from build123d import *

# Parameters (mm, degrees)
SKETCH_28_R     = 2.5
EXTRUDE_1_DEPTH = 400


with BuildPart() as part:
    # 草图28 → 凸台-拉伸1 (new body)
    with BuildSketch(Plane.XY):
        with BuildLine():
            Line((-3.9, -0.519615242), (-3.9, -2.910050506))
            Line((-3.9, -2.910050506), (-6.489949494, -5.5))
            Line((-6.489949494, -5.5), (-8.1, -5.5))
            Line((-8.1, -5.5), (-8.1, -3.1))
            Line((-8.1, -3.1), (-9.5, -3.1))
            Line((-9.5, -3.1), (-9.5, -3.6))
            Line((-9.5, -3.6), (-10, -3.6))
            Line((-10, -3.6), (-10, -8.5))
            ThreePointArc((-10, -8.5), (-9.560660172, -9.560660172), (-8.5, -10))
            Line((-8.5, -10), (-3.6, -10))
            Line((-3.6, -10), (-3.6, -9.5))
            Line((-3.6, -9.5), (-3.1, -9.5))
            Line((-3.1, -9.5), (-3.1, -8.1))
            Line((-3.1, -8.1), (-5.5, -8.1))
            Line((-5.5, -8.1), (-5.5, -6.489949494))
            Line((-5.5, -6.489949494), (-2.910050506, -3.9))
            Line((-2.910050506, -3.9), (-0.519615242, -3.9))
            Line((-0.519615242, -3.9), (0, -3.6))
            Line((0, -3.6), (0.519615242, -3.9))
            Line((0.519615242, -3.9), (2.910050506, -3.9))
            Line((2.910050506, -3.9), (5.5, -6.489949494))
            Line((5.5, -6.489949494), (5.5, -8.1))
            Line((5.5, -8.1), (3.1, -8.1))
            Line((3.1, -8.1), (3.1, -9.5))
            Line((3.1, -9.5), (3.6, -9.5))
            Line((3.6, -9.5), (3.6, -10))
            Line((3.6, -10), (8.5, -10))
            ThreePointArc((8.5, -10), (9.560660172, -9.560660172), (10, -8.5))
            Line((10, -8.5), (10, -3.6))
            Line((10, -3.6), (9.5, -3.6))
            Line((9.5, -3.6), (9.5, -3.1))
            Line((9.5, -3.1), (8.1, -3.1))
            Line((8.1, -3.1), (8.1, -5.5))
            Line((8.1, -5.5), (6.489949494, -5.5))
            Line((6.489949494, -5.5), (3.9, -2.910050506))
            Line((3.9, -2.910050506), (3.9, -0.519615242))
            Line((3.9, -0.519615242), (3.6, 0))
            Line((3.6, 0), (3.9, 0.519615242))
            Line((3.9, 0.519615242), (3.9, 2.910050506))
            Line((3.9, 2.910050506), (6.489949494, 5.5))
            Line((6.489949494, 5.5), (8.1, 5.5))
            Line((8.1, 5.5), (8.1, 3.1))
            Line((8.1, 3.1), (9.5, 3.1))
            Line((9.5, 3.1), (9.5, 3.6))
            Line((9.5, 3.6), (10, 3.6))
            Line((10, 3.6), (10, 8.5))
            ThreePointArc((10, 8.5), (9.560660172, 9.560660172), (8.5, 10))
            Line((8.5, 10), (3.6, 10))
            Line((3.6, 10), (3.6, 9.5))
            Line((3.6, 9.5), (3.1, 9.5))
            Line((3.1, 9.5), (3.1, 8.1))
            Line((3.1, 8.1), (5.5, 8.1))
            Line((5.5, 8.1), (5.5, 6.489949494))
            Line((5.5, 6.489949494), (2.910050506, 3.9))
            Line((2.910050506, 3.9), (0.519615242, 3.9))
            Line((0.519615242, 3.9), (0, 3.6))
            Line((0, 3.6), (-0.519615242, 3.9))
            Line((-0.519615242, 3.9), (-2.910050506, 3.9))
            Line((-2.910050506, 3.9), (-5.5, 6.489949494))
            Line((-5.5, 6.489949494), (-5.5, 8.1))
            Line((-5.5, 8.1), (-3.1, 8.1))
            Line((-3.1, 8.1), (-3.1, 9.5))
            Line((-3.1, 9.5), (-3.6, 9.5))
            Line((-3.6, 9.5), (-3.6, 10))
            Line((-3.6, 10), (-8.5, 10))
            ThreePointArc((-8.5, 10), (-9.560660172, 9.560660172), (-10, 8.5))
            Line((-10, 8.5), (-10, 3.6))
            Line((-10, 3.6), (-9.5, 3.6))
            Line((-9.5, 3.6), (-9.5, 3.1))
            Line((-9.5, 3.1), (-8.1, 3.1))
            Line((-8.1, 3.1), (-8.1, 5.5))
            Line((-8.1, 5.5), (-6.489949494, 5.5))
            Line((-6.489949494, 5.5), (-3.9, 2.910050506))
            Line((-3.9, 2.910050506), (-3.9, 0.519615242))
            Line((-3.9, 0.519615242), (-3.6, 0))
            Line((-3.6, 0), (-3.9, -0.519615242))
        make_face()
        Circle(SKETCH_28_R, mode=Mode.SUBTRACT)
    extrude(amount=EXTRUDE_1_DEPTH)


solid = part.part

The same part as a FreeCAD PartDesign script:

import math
import FreeCAD as App
import Part
import Sketcher

V = App.Vector
Q = App.Units.Quantity

doc = App.newDocument("Part")
body = doc.addObject("PartDesign::Body", "Body")

# Sketch on XY plane
sketch1 = body.newObject("Sketcher::SketchObject", "Sketch")
sketch1.AttachmentSupport = (doc.getObject("XY_Plane"), [""])
sketch1.MapMode = "FlatFace"
sketch1.addGeometry(Part.LineSegment(V(-3.9, -0.5, 0), V(-3.9, -2.9, 0)), False)
sketch1.addGeometry(Part.LineSegment(V(-3.9, -2.9, 0), V(-6.5, -5.5, 0)), False)
sketch1.addGeometry(Part.LineSegment(V(-6.5, -5.5, 0), V(-8.1, -5.5, 0)), False)
sketch1.addGeometry(Part.LineSegment(V(-8.1, -5.5, 0), V(-8.1, -3.1, 0)), False)
sketch1.addGeometry(Part.LineSegment(V(-8.1, -3.1, 0), V(-9.5, -3.1, 0)), False)
sketch1.addGeometry(Part.LineSegment(V(-9.5, -3.1, 0), V(-9.5, -3.6, 0)), False)
sketch1.addGeometry(Part.LineSegment(V(-9.5, -3.6, 0), V(-10, -3.6, 0)), False)
sketch1.addGeometry(Part.LineSegment(V(-10, -3.6, 0), V(-10, -8.5, 0)), False)
sketch1.addGeometry(Part.ArcOfCircle(Part.Circle(V(-8.5, -8.5, 0), V(0, 0, 1), 1.5), math.radians(180), math.radians(270)), False)
sketch1.addGeometry(Part.LineSegment(V(-8.5, -10, 0), V(-3.6, -10, 0)), False)
sketch1.addGeometry(Part.LineSegment(V(-3.6, -10, 0), V(-3.6, -9.5, 0)), False)
sketch1.addGeometry(Part.LineSegment(V(-3.6, -9.5, 0), V(-3.1, -9.5, 0)), False)
sketch1.addGeometry(Part.LineSegment(V(-3.1, -9.5, 0), V(-3.1, -8.1, 0)), False)
sketch1.addGeometry(Part.LineSegment(V(-3.1, -8.1, 0), V(-5.5, -8.1, 0)), False)
sketch1.addGeometry(Part.LineSegment(V(-5.5, -8.1, 0), V(-5.5, -6.5, 0)), False)
sketch1.addGeometry(Part.LineSegment(V(-5.5, -6.5, 0), V(-2.9, -3.9, 0)), False)
sketch1.addGeometry(Part.LineSegment(V(-2.9, -3.9, 0), V(-0.5, -3.9, 0)), False)
sketch1.addGeometry(Part.LineSegment(V(-0.5, -3.9, 0), V(0, -3.6, 0)), False)
sketch1.addGeometry(Part.LineSegment(V(0, -3.6, 0), V(0.5, -3.9, 0)), False)
sketch1.addGeometry(Part.LineSegment(V(0.5, -3.9, 0), V(2.9, -3.9, 0)), False)
sketch1.addGeometry(Part.LineSegment(V(2.9, -3.9, 0), V(5.5, -6.5, 0)), False)
sketch1.addGeometry(Part.LineSegment(V(5.5, -6.5, 0), V(5.5, -8.1, 0)), False)
sketch1.addGeometry(Part.LineSegment(V(5.5, -8.1, 0), V(3.1, -8.1, 0)), False)
sketch1.addGeometry(Part.LineSegment(V(3.1, -8.1, 0), V(3.1, -9.5, 0)), False)
sketch1.addGeometry(Part.LineSegment(V(3.1, -9.5, 0), V(3.6, -9.5, 0)), False)
sketch1.addGeometry(Part.LineSegment(V(3.6, -9.5, 0), V(3.6, -10, 0)), False)
sketch1.addGeometry(Part.LineSegment(V(3.6, -10, 0), V(8.5, -10, 0)), False)
sketch1.addGeometry(Part.ArcOfCircle(Part.Circle(V(8.5, -8.5, 0), V(0, 0, 1), 1.5), math.radians(-90), math.radians(0)), False)
sketch1.addGeometry(Part.LineSegment(V(10, -8.5, 0), V(10, -3.6, 0)), False)
sketch1.addGeometry(Part.LineSegment(V(10, -3.6, 0), V(9.5, -3.6, 0)), False)
sketch1.addGeometry(Part.LineSegment(V(9.5, -3.6, 0), V(9.5, -3.1, 0)), False)
sketch1.addGeometry(Part.LineSegment(V(9.5, -3.1, 0), V(8.1, -3.1, 0)), False)
sketch1.addGeometry(Part.LineSegment(V(8.1, -3.1, 0), V(8.1, -5.5, 0)), False)
sketch1.addGeometry(Part.LineSegment(V(8.1, -5.5, 0), V(6.5, -5.5, 0)), False)
sketch1.addGeometry(Part.LineSegment(V(6.5, -5.5, 0), V(3.9, -2.9, 0)), False)
sketch1.addGeometry(Part.LineSegment(V(3.9, -2.9, 0), V(3.9, -0.5, 0)), False)
sketch1.addGeometry(Part.LineSegment(V(3.9, -0.5, 0), V(3.6, 0, 0)), False)
sketch1.addGeometry(Part.LineSegment(V(3.6, 0, 0), V(3.9, 0.5, 0)), False)
sketch1.addGeometry(Part.LineSegment(V(3.9, 0.5, 0), V(3.9, 2.9, 0)), False)
sketch1.addGeometry(Part.LineSegment(V(3.9, 2.9, 0), V(6.5, 5.5, 0)), False)
sketch1.addGeometry(Part.LineSegment(V(6.5, 5.5, 0), V(8.1, 5.5, 0)), False)
sketch1.addGeometry(Part.LineSegment(V(8.1, 5.5, 0), V(8.1, 3.1, 0)), False)
sketch1.addGeometry(Part.LineSegment(V(8.1, 3.1, 0), V(9.5, 3.1, 0)), False)
sketch1.addGeometry(Part.LineSegment(V(9.5, 3.1, 0), V(9.5, 3.6, 0)), False)
sketch1.addGeometry(Part.LineSegment(V(9.5, 3.6, 0), V(10, 3.6, 0)), False)
sketch1.addGeometry(Part.LineSegment(V(10, 3.6, 0), V(10, 8.5, 0)), False)
sketch1.addGeometry(Part.ArcOfCircle(Part.Circle(V(8.5, 8.5, 0), V(0, 0, 1), 1.5), math.radians(0), math.radians(90)), False)
sketch1.addGeometry(Part.LineSegment(V(8.5, 10, 0), V(3.6, 10, 0)), False)
sketch1.addGeometry(Part.LineSegment(V(3.6, 10, 0), V(3.6, 9.5, 0)), False)
sketch1.addGeometry(Part.LineSegment(V(3.6, 9.5, 0), V(3.1, 9.5, 0)), False)
sketch1.addGeometry(Part.LineSegment(V(3.1, 9.5, 0), V(3.1, 8.1, 0)), False)
sketch1.addGeometry(Part.LineSegment(V(3.1, 8.1, 0), V(5.5, 8.1, 0)), False)
sketch1.addGeometry(Part.LineSegment(V(5.5, 8.1, 0), V(5.5, 6.5, 0)), False)
sketch1.addGeometry(Part.LineSegment(V(5.5, 6.5, 0), V(2.9, 3.9, 0)), False)
sketch1.addGeometry(Part.LineSegment(V(2.9, 3.9, 0), V(0.5, 3.9, 0)), False)
sketch1.addGeometry(Part.LineSegment(V(0.5, 3.9, 0), V(0, 3.6, 0)), False)
sketch1.addGeometry(Part.LineSegment(V(0, 3.6, 0), V(-0.5, 3.9, 0)), False)
sketch1.addGeometry(Part.LineSegment(V(-0.5, 3.9, 0), V(-2.9, 3.9, 0)), False)
sketch1.addGeometry(Part.LineSegment(V(-2.9, 3.9, 0), V(-5.5, 6.5, 0)), False)
sketch1.addGeometry(Part.LineSegment(V(-5.5, 6.5, 0), V(-5.5, 8.1, 0)), False)
sketch1.addGeometry(Part.LineSegment(V(-5.5, 8.1, 0), V(-3.1, 8.1, 0)), False)
sketch1.addGeometry(Part.LineSegment(V(-3.1, 8.1, 0), V(-3.1, 9.5, 0)), False)
sketch1.addGeometry(Part.LineSegment(V(-3.1, 9.5, 0), V(-3.6, 9.5, 0)), False)
sketch1.addGeometry(Part.LineSegment(V(-3.6, 9.5, 0), V(-3.6, 10, 0)), False)
sketch1.addGeometry(Part.LineSegment(V(-3.6, 10, 0), V(-8.5, 10, 0)), False)
sketch1.addGeometry(Part.ArcOfCircle(Part.Circle(V(-8.5, 8.5, 0), V(0, 0, 1), 1.5), math.radians(90), math.radians(180)), False)
sketch1.addGeometry(Part.LineSegment(V(-10, 8.5, 0), V(-10, 3.6, 0)), False)
sketch1.addGeometry(Part.LineSegment(V(-10, 3.6, 0), V(-9.5, 3.6, 0)), False)
sketch1.addGeometry(Part.LineSegment(V(-9.5, 3.6, 0), V(-9.5, 3.1, 0)), False)
sketch1.addGeometry(Part.LineSegment(V(-9.5, 3.1, 0), V(-8.1, 3.1, 0)), False)
sketch1.addGeometry(Part.LineSegment(V(-8.1, 3.1, 0), V(-8.1, 5.5, 0)), False)
sketch1.addGeometry(Part.LineSegment(V(-8.1, 5.5, 0), V(-6.5, 5.5, 0)), False)
sketch1.addGeometry(Part.LineSegment(V(-6.5, 5.5, 0), V(-3.9, 2.9, 0)), False)
sketch1.addGeometry(Part.LineSegment(V(-3.9, 2.9, 0), V(-3.9, 0.5, 0)), False)
sketch1.addGeometry(Part.LineSegment(V(-3.9, 0.5, 0), V(-3.6, 0, 0)), False)
sketch1.addGeometry(Part.LineSegment(V(-3.6, 0, 0), V(-3.9, -0.5, 0)), False)
sketch1.addGeometry(Part.Circle(V(0, 0, 0), V(0, 0, 1), 2.5), False)
sketch1.addConstraint(Sketcher.Constraint("Coincident", 0, 2, 1, 1))
sketch1.addConstraint(Sketcher.Constraint("Coincident", 1, 2, 2, 1))
sketch1.addConstraint(Sketcher.Constraint("Coincident", 2, 2, 3, 1))
sketch1.addConstraint(Sketcher.Constraint("Coincident", 3, 2, 4, 1))
sketch1.addConstraint(Sketcher.Constraint("Coincident", 4, 2, 5, 1))
sketch1.addConstraint(Sketcher.Constraint("Coincident", 5, 2, 6, 1))
sketch1.addConstraint(Sketcher.Constraint("Coincident", 6, 2, 7, 1))
sketch1.addConstraint(Sketcher.Constraint("Tangent", 7, 2, 8, 1))
sketch1.addConstraint(Sketcher.Constraint("Tangent", 8, 2, 9, 1))
sketch1.addConstraint(Sketcher.Constraint("Coincident", 9, 2, 10, 1))
sketch1.addConstraint(Sketcher.Constraint("Coincident", 10, 2, 11, 1))
sketch1.addConstraint(Sketcher.Constraint("Coincident", 11, 2, 12, 1))
sketch1.addConstraint(Sketcher.Constraint("Coincident", 12, 2, 13, 1))
sketch1.addConstraint(Sketcher.Constraint("Coincident", 13, 2, 14, 1))
sketch1.addConstraint(Sketcher.Constraint("Coincident", 14, 2, 15, 1))
sketch1.addConstraint(Sketcher.Constraint("Coincident", 15, 2, 16, 1))
sketch1.addConstraint(Sketcher.Constraint("Coincident", 16, 2, 17, 1))
sketch1.addConstraint(Sketcher.Constraint("Coincident", 17, 2, 18, 1))
sketch1.addConstraint(Sketcher.Constraint("Coincident", 18, 2, 19, 1))
sketch1.addConstraint(Sketcher.Constraint("Coincident", 19, 2, 20, 1))
sketch1.addConstraint(Sketcher.Constraint("Coincident", 20, 2, 21, 1))
sketch1.addConstraint(Sketcher.Constraint("Coincident", 21, 2, 22, 1))
sketch1.addConstraint(Sketcher.Constraint("Coincident", 22, 2, 23, 1))
sketch1.addConstraint(Sketcher.Constraint("Coincident", 23, 2, 24, 1))
sketch1.addConstraint(Sketcher.Constraint("Coincident", 24, 2, 25, 1))
sketch1.addConstraint(Sketcher.Constraint("Coincident", 25, 2, 26, 1))
sketch1.addConstraint(Sketcher.Constraint("Tangent", 26, 2, 27, 1))
sketch1.addConstraint(Sketcher.Constraint("Tangent", 27, 2, 28, 1))
sketch1.addConstraint(Sketcher.Constraint("Coincident", 28, 2, 29, 1))
sketch1.addConstraint(Sketcher.Constraint("Coincident", 29, 2, 30, 1))
sketch1.addConstraint(Sketcher.Constraint("Coincident", 30, 2, 31, 1))
sketch1.addConstraint(Sketcher.Constraint("Coincident", 31, 2, 32, 1))
sketch1.addConstraint(Sketcher.Constraint("Coincident", 32, 2, 33, 1))
sketch1.addConstraint(Sketcher.Constraint("Coincident", 33, 2, 34, 1))
sketch1.addConstraint(Sketcher.Constraint("Coincident", 34, 2, 35, 1))
sketch1.addConstraint(Sketcher.Constraint("Coincident", 35, 2, 36, 1))
sketch1.addConstraint(Sketcher.Constraint("Coincident", 36, 2, 37, 1))
sketch1.addConstraint(Sketcher.Constraint("Coincident", 37, 2, 38, 1))
sketch1.addConstraint(Sketcher.Constraint("Coincident", 38, 2, 39, 1))
sketch1.addConstraint(Sketcher.Constraint("Coincident", 39, 2, 40, 1))
sketch1.addConstraint(Sketcher.Constraint("Coincident", 40, 2, 41, 1))
sketch1.addConstraint(Sketcher.Constraint("Coincident", 41, 2, 42, 1))
sketch1.addConstraint(Sketcher.Constraint("Coincident", 42, 2, 43, 1))
sketch1.addConstraint(Sketcher.Constraint("Coincident", 43, 2, 44, 1))
sketch1.addConstraint(Sketcher.Constraint("Coincident", 44, 2, 45, 1))
sketch1.addConstraint(Sketcher.Constraint("Tangent", 45, 2, 46, 1))
sketch1.addConstraint(Sketcher.Constraint("Tangent", 46, 2, 47, 1))
sketch1.addConstraint(Sketcher.Constraint("Coincident", 47, 2, 48, 1))
sketch1.addConstraint(Sketcher.Constraint("Coincident", 48, 2, 49, 1))
sketch1.addConstraint(Sketcher.Constraint("Coincident", 49, 2, 50, 1))
sketch1.addConstraint(Sketcher.Constraint("Coincident", 50, 2, 51, 1))
sketch1.addConstraint(Sketcher.Constraint("Coincident", 51, 2, 52, 1))
sketch1.addConstraint(Sketcher.Constraint("Coincident", 52, 2, 53, 1))
sketch1.addConstraint(Sketcher.Constraint("Coincident", 53, 2, 54, 1))
sketch1.addConstraint(Sketcher.Constraint("Coincident", 54, 2, 55, 1))
sketch1.addConstraint(Sketcher.Constraint("Coincident", 55, 2, 56, 1))
sketch1.addConstraint(Sketcher.Constraint("Coincident", 56, 2, 57, 1))
sketch1.addConstraint(Sketcher.Constraint("Coincident", 57, 2, 58, 1))
sketch1.addConstraint(Sketcher.Constraint("Coincident", 58, 2, 59, 1))
sketch1.addConstraint(Sketcher.Constraint("Coincident", 59, 2, 60, 1))
sketch1.addConstraint(Sketcher.Constraint("Coincident", 60, 2, 61, 1))
sketch1.addConstraint(Sketcher.Constraint("Coincident", 61, 2, 62, 1))
sketch1.addConstraint(Sketcher.Constraint("Coincident", 62, 2, 63, 1))
sketch1.addConstraint(Sketcher.Constraint("Coincident", 63, 2, 64, 1))
sketch1.addConstraint(Sketcher.Constraint("Tangent", 64, 2, 65, 1))
sketch1.addConstraint(Sketcher.Constraint("Tangent", 65, 2, 66, 1))
sketch1.addConstraint(Sketcher.Constraint("Coincident", 66, 2, 67, 1))
sketch1.addConstraint(Sketcher.Constraint("Coincident", 67, 2, 68, 1))
sketch1.addConstraint(Sketcher.Constraint("Coincident", 68, 2, 69, 1))
sketch1.addConstraint(Sketcher.Constraint("Coincident", 69, 2, 70, 1))
sketch1.addConstraint(Sketcher.Constraint("Coincident", 70, 2, 71, 1))
sketch1.addConstraint(Sketcher.Constraint("Coincident", 71, 2, 72, 1))
sketch1.addConstraint(Sketcher.Constraint("Coincident", 72, 2, 73, 1))
sketch1.addConstraint(Sketcher.Constraint("Coincident", 73, 2, 74, 1))
sketch1.addConstraint(Sketcher.Constraint("Coincident", 74, 2, 75, 1))
sketch1.addConstraint(Sketcher.Constraint("Coincident", 75, 2, 0, 1))
sketch1.addConstraint(Sketcher.Constraint("Vertical", 0))
sketch1.addConstraint(Sketcher.Constraint("Horizontal", 2))
sketch1.addConstraint(Sketcher.Constraint("Vertical", 3))
sketch1.addConstraint(Sketcher.Constraint("Horizontal", 4))
sketch1.addConstraint(Sketcher.Constraint("Vertical", 5))
sketch1.addConstraint(Sketcher.Constraint("Horizontal", 6))
sketch1.addConstraint(Sketcher.Constraint("Vertical", 7))
sketch1.addConstraint(Sketcher.Constraint("Horizontal", 9))
sketch1.addConstraint(Sketcher.Constraint("Vertical", 10))
sketch1.addConstraint(Sketcher.Constraint("Horizontal", 11))
sketch1.addConstraint(Sketcher.Constraint("Vertical", 12))
sketch1.addConstraint(Sketcher.Constraint("Horizontal", 13))
sketch1.addConstraint(Sketcher.Constraint("Vertical", 14))
sketch1.addConstraint(Sketcher.Constraint("Horizontal", 16))
sketch1.addConstraint(Sketcher.Constraint("Horizontal", 19))
sketch1.addConstraint(Sketcher.Constraint("Vertical", 21))
sketch1.addConstraint(Sketcher.Constraint("Horizontal", 22))
sketch1.addConstraint(Sketcher.Constraint("Vertical", 23))
sketch1.addConstraint(Sketcher.Constraint("Horizontal", 24))
sketch1.addConstraint(Sketcher.Constraint("Vertical", 25))
sketch1.addConstraint(Sketcher.Constraint("Horizontal", 26))
sketch1.addConstraint(Sketcher.Constraint("Vertical", 28))
sketch1.addConstraint(Sketcher.Constraint("Horizontal", 29))
sketch1.addConstraint(Sketcher.Constraint("Vertical", 30))
sketch1.addConstraint(Sketcher.Constraint("Horizontal", 31))
sketch1.addConstraint(Sketcher.Constraint("Vertical", 32))
sketch1.addConstraint(Sketcher.Constraint("Horizontal", 33))
sketch1.addConstraint(Sketcher.Constraint("Vertical", 35))
sketch1.addConstraint(Sketcher.Constraint("Vertical", 38))
sketch1.addConstraint(Sketcher.Constraint("Horizontal", 40))
sketch1.addConstraint(Sketcher.Constraint("Vertical", 41))
sketch1.addConstraint(Sketcher.Constraint("Horizontal", 42))
sketch1.addConstraint(Sketcher.Constraint("Vertical", 43))
sketch1.addConstraint(Sketcher.Constraint("Horizontal", 44))
sketch1.addConstraint(Sketcher.Constraint("Vertical", 45))
sketch1.addConstraint(Sketcher.Constraint("Horizontal", 47))
sketch1.addConstraint(Sketcher.Constraint("Vertical", 48))
sketch1.addConstraint(Sketcher.Constraint("Horizontal", 49))
sketch1.addConstraint(Sketcher.Constraint("Vertical", 50))
sketch1.addConstraint(Sketcher.Constraint("Horizontal", 51))
sketch1.addConstraint(Sketcher.Constraint("Vertical", 52))
sketch1.addConstraint(Sketcher.Constraint("Horizontal", 54))
sketch1.addConstraint(Sketcher.Constraint("Horizontal", 57))
sketch1.addConstraint(Sketcher.Constraint("Vertical", 59))
sketch1.addConstraint(Sketcher.Constraint("Horizontal", 60))
sketch1.addConstraint(Sketcher.Constraint("Vertical", 61))
sketch1.addConstraint(Sketcher.Constraint("Horizontal", 62))
sketch1.addConstraint(Sketcher.Constraint("Vertical", 63))
sketch1.addConstraint(Sketcher.Constraint("Horizontal", 64))
sketch1.addConstraint(Sketcher.Constraint("Vertical", 66))
sketch1.addConstraint(Sketcher.Constraint("Horizontal", 67))
sketch1.addConstraint(Sketcher.Constraint("Vertical", 68))
sketch1.addConstraint(Sketcher.Constraint("Horizontal", 69))
sketch1.addConstraint(Sketcher.Constraint("Vertical", 70))
sketch1.addConstraint(Sketcher.Constraint("Horizontal", 71))
sketch1.addConstraint(Sketcher.Constraint("Vertical", 73))
sketch1.addConstraint(Sketcher.Constraint("Coincident", 76, 3, -1, 1))
sketch1.addConstraint(Sketcher.Constraint("Equal", 8, 27))
sketch1.addConstraint(Sketcher.Constraint("Equal", 27, 46))
sketch1.addConstraint(Sketcher.Constraint("Equal", 46, 65))
sketch1.addConstraint(Sketcher.Constraint("Symmetric", 8, 3, 46, 3, -1, 1))
sketch1.addConstraint(Sketcher.Constraint("Symmetric", 27, 3, 65, 3, -1, 1))
sketch1.addConstraint(Sketcher.Constraint("Symmetric", 0, 2, 38, 2, -1, 1))
sketch1.addConstraint(Sketcher.Constraint("Symmetric", 1, 2, 39, 2, -1, 1))
sketch1.addConstraint(Sketcher.Constraint("Symmetric", 3, 2, 41, 2, -1, 1))
sketch1.addConstraint(Sketcher.Constraint("Symmetric", 5, 2, 43, 2, -1, 1))
sketch1.addConstraint(Sketcher.Constraint("Symmetric", 10, 2, 48, 2, -1, 1))
sketch1.addConstraint(Sketcher.Constraint("Symmetric", 12, 2, 50, 2, -1, 1))
sketch1.addConstraint(Sketcher.Constraint("Symmetric", 14, 2, 52, 2, -1, 1))
sketch1.addConstraint(Sketcher.Constraint("Symmetric", 15, 2, 53, 2, -1, 1))
sketch1.addConstraint(Sketcher.Constraint("Symmetric", 17, 2, 55, 2, -1, 1))
sketch1.addConstraint(Sketcher.Constraint("Symmetric", 18, 2, 56, 2, -1, 1))
sketch1.addConstraint(Sketcher.Constraint("Symmetric", 20, 2, 58, 2, -1, 1))
sketch1.addConstraint(Sketcher.Constraint("Symmetric", 22, 2, 60, 2, -1, 1))
sketch1.addConstraint(Sketcher.Constraint("Symmetric", 24, 2, 62, 2, -1, 1))
sketch1.addConstraint(Sketcher.Constraint("Symmetric", 29, 2, 67, 2, -1, 1))
sketch1.addConstraint(Sketcher.Constraint("Symmetric", 31, 2, 69, 2, -1, 1))
sketch1.addConstraint(Sketcher.Constraint("Symmetric", 33, 2, 71, 2, -1, 1))
sketch1.addConstraint(Sketcher.Constraint("Symmetric", 34, 2, 72, 2, -1, 1))
sketch1.addConstraint(Sketcher.Constraint("Symmetric", 36, 2, 74, 2, -1, 1))
sketch1.addConstraint(Sketcher.Constraint("Symmetric", 8, 3, 27, 3, -2))
sketch1.addConstraint(Sketcher.Constraint("Symmetric", 16, 2, 18, 2, -2))
sketch1.addConstraint(Sketcher.Constraint("Symmetric", 14, 2, 20, 2, -2))
sketch1.addConstraint(Sketcher.Constraint("Symmetric", 12, 2, 22, 2, -2))
sketch1.addConstraint(Sketcher.Constraint("Symmetric", 10, 2, 24, 2, -2))
sketch1.addConstraint(Sketcher.Constraint("Symmetric", 5, 2, 29, 2, -2))
sketch1.addConstraint(Sketcher.Constraint("Symmetric", 3, 2, 31, 2, -2))
sketch1.addConstraint(Sketcher.Constraint("Symmetric", 1, 2, 33, 2, -2))
sketch1.addConstraint(Sketcher.Constraint("Symmetric", 0, 2, 34, 2, -2))
sketch1.addConstraint(Sketcher.Constraint("PointOnObject", 17, 2, -2))
sketch1.addConstraint(Sketcher.Constraint("PointOnObject", 36, 2, -1))
sketch1.addConstraint(Sketcher.Constraint("Parallel", 1, 15))
sketch1.addConstraint(Sketcher.Constraint("Perpendicular", 15, 20))
sketch1.addConstraint(Sketcher.Constraint("Parallel", 20, 34))
sketch1.addConstraint(Sketcher.Constraint("Perpendicular", 17, 36))
sketch1.addConstraint(Sketcher.Constraint("Perpendicular", 18, 37))
sketch1.addConstraint(Sketcher.Constraint("Perpendicular", 36, 55))
sketch1.addConstraint(Sketcher.Constraint("Perpendicular", 53, 58))
sketch1.addConstraint(Sketcher.Constraint("Perpendicular", 55, 74))
sketch1.addConstraint(Sketcher.Constraint("Perpendicular", 56, 75))
sketch1.addConstraint(Sketcher.Constraint("Horizontal", 6, 2, 17, 2))
sketch1.addConstraint(Sketcher.Constraint("Vertical", 25, 2, 36, 2))
sketch1.addConstraint(Sketcher.Constraint("Equal", 6, 11))
sketch1.addConstraint(Sketcher.Constraint("Equal", 57, 0))
sketch1.addConstraint(Sketcher.Constraint("Equal", 60, 3))
sketch1.addConstraint(Sketcher.Constraint("Equal", 67, 5))
sketch1.addConstraint(Sketcher.Constraint("Equal", 64, 7))
sketch1.addConstraint(Sketcher.Constraint("Equal", 5, 10))
sketch1.addConstraint(Sketcher.Constraint("Equal", 69, 12))
sketch1.addConstraint(Sketcher.Constraint("Equal", 71, 14))
sketch1.addConstraint(Sketcher.Constraint("Equal", 1, 15))
sketch1.addConstraint(Sketcher.Constraint("Diameter", 76, Q("5 mm")))
sketch1.addConstraint(Sketcher.Constraint("Radius", 8, Q("1.5 mm")))
sketch1.addConstraint(Sketcher.Constraint("Angle", 17, Q("30 deg")))
sketch1.addConstraint(Sketcher.Constraint("DistanceX", 4, 2, 4, 1, Q("1.4 mm")))
sketch1.addConstraint(Sketcher.Constraint("DistanceX", 6, 2, 6, 1, Q("0.5 mm")))
sketch1.addConstraint(Sketcher.Constraint("DistanceX", 9, 1, 9, 2, Q("4.9 mm")))
sketch1.addConstraint(Sketcher.Constraint("DistanceX", 13, 2, 13, 1, Q("2.4 mm")))
sketch1.addConstraint(Sketcher.Constraint("DistanceX", 6, 2, -1, 1, Q("10 mm")))
sketch1.addConstraint(Sketcher.Constraint("Distance", 17, Q("0.6 mm")))
sketch1.addConstraint(Sketcher.Constraint("DistanceX", 2, 2, 2, 1, Q("1.610051 mm")))
pad1 = body.newObject("PartDesign::Pad", "Pad")
pad1.Profile = sketch1
pad1.Length = 400

doc.recompute()
